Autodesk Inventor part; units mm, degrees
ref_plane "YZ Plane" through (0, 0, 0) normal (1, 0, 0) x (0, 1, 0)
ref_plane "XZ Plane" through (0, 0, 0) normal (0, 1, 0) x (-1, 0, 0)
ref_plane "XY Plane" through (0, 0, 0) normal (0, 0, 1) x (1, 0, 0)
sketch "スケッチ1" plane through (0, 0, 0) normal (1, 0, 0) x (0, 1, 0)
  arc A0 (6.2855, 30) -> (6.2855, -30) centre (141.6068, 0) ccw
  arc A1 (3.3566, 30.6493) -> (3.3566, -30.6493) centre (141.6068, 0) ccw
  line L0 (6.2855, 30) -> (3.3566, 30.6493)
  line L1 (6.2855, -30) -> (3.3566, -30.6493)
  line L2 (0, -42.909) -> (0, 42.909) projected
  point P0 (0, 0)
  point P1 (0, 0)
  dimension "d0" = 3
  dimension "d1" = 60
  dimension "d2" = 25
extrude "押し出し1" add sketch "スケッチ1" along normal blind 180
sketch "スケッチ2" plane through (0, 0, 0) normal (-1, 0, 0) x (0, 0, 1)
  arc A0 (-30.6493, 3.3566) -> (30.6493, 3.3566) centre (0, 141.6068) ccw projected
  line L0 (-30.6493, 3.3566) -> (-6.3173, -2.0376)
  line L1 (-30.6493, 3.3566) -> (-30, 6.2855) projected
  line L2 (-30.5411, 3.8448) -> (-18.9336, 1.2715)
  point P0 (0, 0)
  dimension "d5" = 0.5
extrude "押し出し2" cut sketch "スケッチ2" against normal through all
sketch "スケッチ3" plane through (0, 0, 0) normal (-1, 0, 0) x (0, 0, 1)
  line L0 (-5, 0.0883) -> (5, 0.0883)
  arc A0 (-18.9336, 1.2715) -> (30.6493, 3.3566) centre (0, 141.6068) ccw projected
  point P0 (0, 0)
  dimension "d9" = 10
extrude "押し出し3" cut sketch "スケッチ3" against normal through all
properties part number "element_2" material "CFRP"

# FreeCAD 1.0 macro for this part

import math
import FreeCAD as App
import Part
import Sketcher
Q = App.Units.Quantity

doc = App.newDocument("Part")
params = doc.addObject("Spreadsheet::Sheet", "Params")
for row, (alias, value) in enumerate([
    ("sketch1_length", "3 mm"),
    ("pad1_length", "180 mm"),
    ("sketch2_length", "0.5 mm"),
    ("sketch3_height", "10 mm"),
], start=1):
    params.set(f"A{row}", alias)
    params.set(f"B{row}", "=" + value)
    params.setAlias(f"B{row}", alias)

body = doc.addObject("PartDesign::Body", "Body")

sketch1 = body.newObject("Sketcher::SketchObject", "Sketch")
sketch1.AttachmentSupport = (doc.getObject("YZ_Plane"), [""])
sketch1.MapMode = "FlatFace"
sketch1.addGeometry([
    Part.ArcOfCircle(Part.Circle(App.Vector(141.6, 0, 0), App.Vector(0, 0, 1), 138.6), math.radians(168), math.radians(192)),
    Part.LineSegment(App.Vector(6.3, 30, 0), App.Vector(3.4, 30.6, 0)),
    Part.ArcOfCircle(Part.Circle(App.Vector(141.6, 0, 0), App.Vector(0, 0, 1), 141.6), math.radians(168), math.radians(192)),
    Part.LineSegment(App.Vector(3.4, -30.6, 0), App.Vector(6.3, -30, 0)),
], False)
sketch1.addConstraint([
    Sketcher.Constraint("Coincident", 0, 1, 1, 1),
    Sketcher.Constraint("Coincident", 1, 2, 2, 1),
    Sketcher.Constraint("Coincident", 2, 2, 3, 1),
    Sketcher.Constraint("Coincident", 3, 2, 0, 2),
    Sketcher.Constraint("Coincident", 2, 3, 0, 3),
    Sketcher.Constraint("Symmetric", 1, 2, 2, 2, -1),
    Sketcher.Constraint("Vertical", 0, 1, 3, 2),
    Sketcher.Constraint("Distance", 1, Q("3 mm")),
    Sketcher.Constraint("DistanceY", 3, 2, 0, 1, Q("60 mm")),
    Sketcher.Constraint("Angle", 1, Q("167.5004 deg")),
    Sketcher.Constraint("Radius", 0, Q("138.6068 mm")),
    Sketcher.Constraint("DistanceX", -1, 1, 0, 3, Q("141.6068 mm")),
])
sketch1.setExpression("Constraints[7]", "Params.sketch1_length")
pad1 = body.newObject("PartDesign::Pad", "Pad")
pad1.Profile = sketch1
pad1.setExpression("Length", "Params.pad1_length")

sketch2 = body.newObject("Sketcher::SketchObject", "Sketch001")
sketch2.AttachmentSupport = (doc.getObject("YZ_Plane"), [""])
sketch2.MapMode = "FlatFace"
sketch2.addGeometry([
    Part.LineSegment(App.Vector(3.8, -30.5, 0), App.Vector(3.4, -30.6, 0)),
    Part.ArcOfCircle(Part.Circle(App.Vector(141.6, 0, 0), App.Vector(0, 0, 1), 141.6), math.radians(-172.32), math.radians(-167.5)),
    Part.LineSegment(App.Vector(1.3, -18.9, 0), App.Vector(3.8, -30.5, 0)),
], False)
sketch2.addConstraint([
    Sketcher.Constraint("Coincident", 0, 2, 1, 2),
    Sketcher.Constraint("Coincident", 1, 1, 2, 1),
    Sketcher.Constraint("Coincident", 2, 2, 0, 1),
    Sketcher.Constraint("PointOnObject", 1, 3, -1),
    Sketcher.Constraint("Perpendicular", 0, 2),
    Sketcher.Constraint("Distance", 0, Q("0.5 mm")),
    Sketcher.Constraint("Angle", 0, Q("-167.5004 deg")),
    Sketcher.Constraint("Radius", 1, Q("141.6068 mm")),
    Sketcher.Constraint("DistanceY", 2, 2, -1, 1, Q("30.541 mm")),
    Sketcher.Constraint("DistanceX", -1, 1, 1, 3, Q("141.6068 mm")),
])
sketch2.setExpression("Constraints[5]", "Params.sketch2_length")
pocket1 = body.newObject("PartDesign::Pocket", "Pocket")
pocket1.Profile = sketch2
pocket1.Type = "ThroughAll"
pocket1.Reversed = True

sketch3 = body.newObject("Sketcher::SketchObject", "Sketch002")
sketch3.AttachmentSupport = (doc.getObject("YZ_Plane"), [""])
sketch3.MapMode = "FlatFace"
sketch3.addGeometry([
    Part.LineSegment(App.Vector(0, 5, 0), App.Vector(0, -5, 0)),
    Part.ArcOfCircle(Part.Circle(App.Vector(142, 0, 0), App.Vector(0, 0, 1), 142), math.radians(177.98), math.radians(182.02)),
], False)
sketch3.addConstraint([
    Sketcher.Constraint("Coincident", 0, 1, 1, 1),
    Sketcher.Constraint("Coincident", 1, 2, 0, 2),
    Sketcher.Constraint("Vertical", 0),
    Sketcher.Constraint("PointOnObject", 1, 3, -1),
    Sketcher.Constraint("DistanceY", 0, 2, 0, 1, Q("10 mm")),
    Sketcher.Constraint("Radius", 1, Q("141.609 mm")),
    Sketcher.Constraint("DistanceX", -1, 1, 1, 3, Q("141.609 mm")),
])
sketch3.setExpression("Constraints[4]", "Params.sketch3_height")
pocket2 = body.newObject("PartDesign::Pocket", "Pocket001")
pocket2.Profile = sketch3
pocket2.Type = "ThroughAll"
pocket2.Reversed = True

doc.recompute()
